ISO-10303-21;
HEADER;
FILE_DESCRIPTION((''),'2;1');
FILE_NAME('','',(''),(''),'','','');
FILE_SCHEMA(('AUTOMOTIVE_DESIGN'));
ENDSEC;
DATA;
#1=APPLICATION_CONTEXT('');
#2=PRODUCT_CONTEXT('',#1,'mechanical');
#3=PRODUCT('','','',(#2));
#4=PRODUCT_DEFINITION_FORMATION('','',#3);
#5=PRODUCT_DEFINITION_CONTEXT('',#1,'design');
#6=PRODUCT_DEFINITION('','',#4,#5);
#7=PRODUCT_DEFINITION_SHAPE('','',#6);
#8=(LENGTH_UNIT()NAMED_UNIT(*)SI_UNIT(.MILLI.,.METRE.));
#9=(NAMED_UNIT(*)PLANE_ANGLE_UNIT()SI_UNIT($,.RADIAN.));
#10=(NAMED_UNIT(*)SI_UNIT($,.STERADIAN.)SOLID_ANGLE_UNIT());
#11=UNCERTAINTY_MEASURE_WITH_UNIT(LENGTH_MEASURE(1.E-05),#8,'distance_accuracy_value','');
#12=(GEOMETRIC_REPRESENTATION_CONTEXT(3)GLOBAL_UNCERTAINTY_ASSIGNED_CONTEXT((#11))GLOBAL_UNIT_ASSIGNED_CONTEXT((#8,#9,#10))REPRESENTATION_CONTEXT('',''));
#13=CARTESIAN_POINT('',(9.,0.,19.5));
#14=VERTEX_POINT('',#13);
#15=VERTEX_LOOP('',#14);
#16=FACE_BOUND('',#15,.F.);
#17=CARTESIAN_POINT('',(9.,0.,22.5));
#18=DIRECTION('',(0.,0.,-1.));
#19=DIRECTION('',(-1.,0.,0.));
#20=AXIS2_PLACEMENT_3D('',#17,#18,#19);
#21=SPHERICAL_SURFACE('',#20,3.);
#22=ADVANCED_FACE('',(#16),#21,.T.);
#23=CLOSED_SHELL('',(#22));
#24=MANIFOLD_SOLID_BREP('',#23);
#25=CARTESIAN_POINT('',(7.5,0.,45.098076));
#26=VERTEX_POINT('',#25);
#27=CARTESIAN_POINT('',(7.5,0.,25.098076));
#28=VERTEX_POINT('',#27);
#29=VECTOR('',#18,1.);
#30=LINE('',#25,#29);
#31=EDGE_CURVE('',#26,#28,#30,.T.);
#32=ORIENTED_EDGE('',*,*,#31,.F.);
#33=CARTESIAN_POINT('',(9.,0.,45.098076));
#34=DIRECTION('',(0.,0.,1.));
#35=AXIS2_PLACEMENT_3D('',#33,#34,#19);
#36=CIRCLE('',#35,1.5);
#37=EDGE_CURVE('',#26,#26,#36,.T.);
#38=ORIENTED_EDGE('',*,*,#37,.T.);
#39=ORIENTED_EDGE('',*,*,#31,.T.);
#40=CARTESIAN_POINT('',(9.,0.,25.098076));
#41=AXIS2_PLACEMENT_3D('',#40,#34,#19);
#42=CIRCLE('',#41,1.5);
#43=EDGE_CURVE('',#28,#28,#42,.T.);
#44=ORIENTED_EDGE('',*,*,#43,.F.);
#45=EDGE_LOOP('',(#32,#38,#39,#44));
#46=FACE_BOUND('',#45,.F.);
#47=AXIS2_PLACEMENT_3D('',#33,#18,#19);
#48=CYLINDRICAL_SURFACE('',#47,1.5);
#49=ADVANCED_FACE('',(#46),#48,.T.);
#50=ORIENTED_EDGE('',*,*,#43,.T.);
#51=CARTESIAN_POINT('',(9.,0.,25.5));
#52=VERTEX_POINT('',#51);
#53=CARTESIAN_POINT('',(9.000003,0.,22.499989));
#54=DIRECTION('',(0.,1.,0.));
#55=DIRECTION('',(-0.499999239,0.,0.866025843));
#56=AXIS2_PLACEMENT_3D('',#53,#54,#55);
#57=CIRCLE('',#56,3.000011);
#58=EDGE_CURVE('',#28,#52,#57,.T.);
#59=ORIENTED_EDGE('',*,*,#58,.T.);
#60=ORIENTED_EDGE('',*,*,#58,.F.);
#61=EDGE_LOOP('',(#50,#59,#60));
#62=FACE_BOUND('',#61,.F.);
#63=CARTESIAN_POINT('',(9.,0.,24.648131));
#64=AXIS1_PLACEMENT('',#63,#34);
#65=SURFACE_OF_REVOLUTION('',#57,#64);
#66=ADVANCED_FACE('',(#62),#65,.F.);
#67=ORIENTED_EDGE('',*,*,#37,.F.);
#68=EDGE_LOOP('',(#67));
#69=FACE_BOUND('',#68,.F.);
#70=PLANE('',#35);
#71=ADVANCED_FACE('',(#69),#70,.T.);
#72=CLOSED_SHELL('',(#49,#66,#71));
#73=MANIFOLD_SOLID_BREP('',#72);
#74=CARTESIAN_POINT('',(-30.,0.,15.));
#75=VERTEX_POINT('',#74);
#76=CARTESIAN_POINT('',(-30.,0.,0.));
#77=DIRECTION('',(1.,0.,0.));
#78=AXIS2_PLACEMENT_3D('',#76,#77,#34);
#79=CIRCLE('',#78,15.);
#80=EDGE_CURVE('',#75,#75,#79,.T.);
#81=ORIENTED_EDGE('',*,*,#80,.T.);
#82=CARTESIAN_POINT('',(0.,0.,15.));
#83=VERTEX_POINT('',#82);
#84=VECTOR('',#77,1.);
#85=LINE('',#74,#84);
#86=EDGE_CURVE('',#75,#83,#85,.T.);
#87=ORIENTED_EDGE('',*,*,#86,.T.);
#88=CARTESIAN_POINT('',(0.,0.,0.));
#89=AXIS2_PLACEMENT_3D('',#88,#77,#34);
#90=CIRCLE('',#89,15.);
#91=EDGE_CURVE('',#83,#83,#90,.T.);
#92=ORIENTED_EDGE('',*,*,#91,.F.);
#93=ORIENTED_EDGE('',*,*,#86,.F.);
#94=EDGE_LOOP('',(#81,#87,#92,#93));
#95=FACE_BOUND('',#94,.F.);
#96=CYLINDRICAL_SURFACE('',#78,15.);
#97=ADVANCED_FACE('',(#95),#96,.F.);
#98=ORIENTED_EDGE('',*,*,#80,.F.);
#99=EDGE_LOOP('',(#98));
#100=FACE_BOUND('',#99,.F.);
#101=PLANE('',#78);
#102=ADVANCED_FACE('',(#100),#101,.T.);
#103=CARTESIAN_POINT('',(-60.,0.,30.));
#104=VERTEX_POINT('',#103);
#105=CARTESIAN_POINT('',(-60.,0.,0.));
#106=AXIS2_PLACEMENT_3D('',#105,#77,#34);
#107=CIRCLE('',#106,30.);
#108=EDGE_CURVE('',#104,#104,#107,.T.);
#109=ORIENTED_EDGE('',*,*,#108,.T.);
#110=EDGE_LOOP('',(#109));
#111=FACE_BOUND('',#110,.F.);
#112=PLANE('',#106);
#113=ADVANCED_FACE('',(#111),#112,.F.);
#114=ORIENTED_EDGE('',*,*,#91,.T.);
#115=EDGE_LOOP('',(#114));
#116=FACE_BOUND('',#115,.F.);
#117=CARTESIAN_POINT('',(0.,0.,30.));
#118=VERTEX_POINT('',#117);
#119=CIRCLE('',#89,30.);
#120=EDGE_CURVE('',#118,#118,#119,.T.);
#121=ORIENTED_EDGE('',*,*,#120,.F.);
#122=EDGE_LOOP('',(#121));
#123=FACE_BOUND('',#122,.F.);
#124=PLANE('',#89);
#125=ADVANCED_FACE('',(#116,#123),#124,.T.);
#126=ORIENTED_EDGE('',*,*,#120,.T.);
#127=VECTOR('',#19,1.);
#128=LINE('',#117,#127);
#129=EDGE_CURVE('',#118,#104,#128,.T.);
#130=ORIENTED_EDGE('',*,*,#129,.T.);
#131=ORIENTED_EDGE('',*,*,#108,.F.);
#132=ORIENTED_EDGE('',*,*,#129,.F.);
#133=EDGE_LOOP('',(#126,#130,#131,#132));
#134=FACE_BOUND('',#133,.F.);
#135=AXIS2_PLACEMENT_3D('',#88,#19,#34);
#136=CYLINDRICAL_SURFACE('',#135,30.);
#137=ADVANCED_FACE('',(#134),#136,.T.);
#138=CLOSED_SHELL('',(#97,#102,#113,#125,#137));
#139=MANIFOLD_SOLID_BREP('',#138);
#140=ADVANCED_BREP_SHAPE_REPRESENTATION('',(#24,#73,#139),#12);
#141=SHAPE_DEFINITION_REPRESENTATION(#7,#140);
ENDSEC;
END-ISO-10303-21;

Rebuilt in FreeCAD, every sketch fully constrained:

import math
import FreeCAD as App
import Part
import Sketcher

V = App.Vector
Q = App.Units.Quantity


def add_polygon(sketch, points):
    """Adds a closed chain of lines whose ends are joined by coincident constraints."""
    first, n = sketch.GeometryCount, len(points)
    for a, b in zip(points, points[1:] + points[:1]):
        sketch.addGeometry(Part.LineSegment(App.Vector(*a, 0), App.Vector(*b, 0)), False)
    for i in range(n):
        sketch.addConstraint(Sketcher.Constraint("Coincident", first + i, 2, first + (i + 1) % n, 1))

doc = App.newDocument("Part")
body = doc.addObject("PartDesign::Body", "Body")

# Sketch on XZ plane
sketch1 = body.newObject("Sketcher::SketchObject", "Sketch")
sketch1.AttachmentSupport = (doc.getObject("XZ_Plane"), [""])
sketch1.MapMode = "FlatFace"
add_polygon(sketch1, [(0, 30), (-60, 30), (-60, 0), (-30, 0), (-30, 15), (0, 15)])  # lines 0-5
sketch1.addConstraint([
    Sketcher.Constraint("Horizontal", 0),
    Sketcher.Constraint("Vertical", 1),
    Sketcher.Constraint("Horizontal", 2),
    Sketcher.Constraint("Vertical", 3),
    Sketcher.Constraint("Horizontal", 4),
    Sketcher.Constraint("Vertical", 5),
    Sketcher.Constraint("PointOnObject", 1, 2, -1),
    Sketcher.Constraint("PointOnObject", 4, 2, -2),
    Sketcher.Constraint("Equal", 2, 4),
    Sketcher.Constraint("Equal", 4, 1),
    Sketcher.Constraint("Equal", 3, 5),
    Sketcher.Constraint("DistanceX", 0, 2, 0, 1, Q("60 mm")),
])
revolution = body.newObject("PartDesign::Revolution", "Revolution")
revolution.Profile = sketch1
revolution.ReferenceAxis = (sketch1, ["H_Axis"])
revolution.Angle = 360
body2 = doc.addObject("PartDesign::Body", "Body001")

# Sketch on XZ plane
sketch2 = body2.newObject("Sketcher::SketchObject", "Sketch001")
sketch2.AttachmentSupport = (doc.getObject("XZ_Plane001"), [""])
sketch2.MapMode = "FlatFace"
sketch2.addGeometry([
    Part.LineSegment(V(9, 19.5, 0), V(9, 25.5, 0)),
    Part.ArcOfCircle(Part.Circle(V(9, 22.5, 0), V(0, 0, 1), 3), math.radians(90), math.radians(270)),
], False)
sketch2.addGeometry(Part.LineSegment(V(9, 19.5, 0), V(9, 25.5, 0)), True)  # axis
sketch2.addConstraint([
    Sketcher.Constraint("Coincident", 0, 1, 1, 2),
    Sketcher.Constraint("Coincident", 1, 1, 0, 2),
    Sketcher.Constraint("Vertical", 0),
    Sketcher.Constraint("Vertical", 2),
    Sketcher.Constraint("Coincident", 2, 1, 0, 1),
    Sketcher.Constraint("Vertical", 1, 3, 0, 1),
    Sketcher.Constraint("Equal", 0, 2),
    Sketcher.Constraint("Radius", 1, Q("3 mm")),
    Sketcher.Constraint("DistanceX", -1, 1, 1, 3, Q("9 mm")),
    Sketcher.Constraint("DistanceY", -1, 1, 1, 3, Q("22.5 mm")),
])
revolution2 = body2.newObject("PartDesign::Revolution", "Revolution001")
revolution2.Profile = sketch2
revolution2.ReferenceAxis = (sketch2, ["Axis0"])
revolution2.Angle = 360
body3 = doc.addObject("PartDesign::Body", "Body002")

# Sketch on XZ plane
sketch3 = body3.newObject("Sketcher::SketchObject", "Sketch002")
sketch3.AttachmentSupport = (doc.getObject("XZ_Plane002"), [""])
sketch3.MapMode = "FlatFace"
sketch3.addGeometry([
    Part.ArcOfCircle(Part.Circle(V(9, 22.5, 0), V(0, 0, 1), 3), math.radians(90), math.radians(120)),
    Part.LineSegment(V(9, 25.5, 0), V(9, 45.1, 0)),
    Part.LineSegment(V(9, 45.1, 0), V(7.5, 45.1, 0)),
    Part.LineSegment(V(7.5, 45.1, 0), V(7.5, 25.1, 0)),
], False)
sketch3.addGeometry(Part.LineSegment(V(9, 22.5, 0), V(9, 45.1, 0)), True)  # axis
sketch3.addConstraint([
    Sketcher.Constraint("Coincident", 0, 1, 1, 1),
    Sketcher.Constraint("Coincident", 1, 2, 2, 1),
    Sketcher.Constraint("Coincident", 2, 2, 3, 1),
    Sketcher.Constraint("Coincident", 3, 2, 0, 2),
    Sketcher.Constraint("Vertical", 1),
    Sketcher.Constraint("Horizontal", 2),
    Sketcher.Constraint("Vertical", 3),
    Sketcher.Constraint("Vertical", 4),
    Sketcher.Constraint("Coincident", 4, 1, 0, 3),
    Sketcher.Constraint("Coincident", 4, 2, 1, 2),
    Sketcher.Constraint("DistanceY", 3, 2, 3, 1, Q("20 mm")),
    Sketcher.Constraint("DistanceX", 2, 2, 2, 1, Q("1.5 mm")),
    Sketcher.Constraint("DistanceX", -1, 1, 0, 1, Q("9 mm")),
    Sketcher.Constraint("DistanceY", -1, 1, 0, 1, Q("25.5 mm")),
    Sketcher.Constraint("Radius", 0, Q("3.000011 mm")),
])
revolution3 = body3.newObject("PartDesign::Revolution", "Revolution002")
revolution3.Profile = sketch3
revolution3.ReferenceAxis = (sketch3, ["Axis0"])
revolution3.Angle = 360

doc.recompute()
